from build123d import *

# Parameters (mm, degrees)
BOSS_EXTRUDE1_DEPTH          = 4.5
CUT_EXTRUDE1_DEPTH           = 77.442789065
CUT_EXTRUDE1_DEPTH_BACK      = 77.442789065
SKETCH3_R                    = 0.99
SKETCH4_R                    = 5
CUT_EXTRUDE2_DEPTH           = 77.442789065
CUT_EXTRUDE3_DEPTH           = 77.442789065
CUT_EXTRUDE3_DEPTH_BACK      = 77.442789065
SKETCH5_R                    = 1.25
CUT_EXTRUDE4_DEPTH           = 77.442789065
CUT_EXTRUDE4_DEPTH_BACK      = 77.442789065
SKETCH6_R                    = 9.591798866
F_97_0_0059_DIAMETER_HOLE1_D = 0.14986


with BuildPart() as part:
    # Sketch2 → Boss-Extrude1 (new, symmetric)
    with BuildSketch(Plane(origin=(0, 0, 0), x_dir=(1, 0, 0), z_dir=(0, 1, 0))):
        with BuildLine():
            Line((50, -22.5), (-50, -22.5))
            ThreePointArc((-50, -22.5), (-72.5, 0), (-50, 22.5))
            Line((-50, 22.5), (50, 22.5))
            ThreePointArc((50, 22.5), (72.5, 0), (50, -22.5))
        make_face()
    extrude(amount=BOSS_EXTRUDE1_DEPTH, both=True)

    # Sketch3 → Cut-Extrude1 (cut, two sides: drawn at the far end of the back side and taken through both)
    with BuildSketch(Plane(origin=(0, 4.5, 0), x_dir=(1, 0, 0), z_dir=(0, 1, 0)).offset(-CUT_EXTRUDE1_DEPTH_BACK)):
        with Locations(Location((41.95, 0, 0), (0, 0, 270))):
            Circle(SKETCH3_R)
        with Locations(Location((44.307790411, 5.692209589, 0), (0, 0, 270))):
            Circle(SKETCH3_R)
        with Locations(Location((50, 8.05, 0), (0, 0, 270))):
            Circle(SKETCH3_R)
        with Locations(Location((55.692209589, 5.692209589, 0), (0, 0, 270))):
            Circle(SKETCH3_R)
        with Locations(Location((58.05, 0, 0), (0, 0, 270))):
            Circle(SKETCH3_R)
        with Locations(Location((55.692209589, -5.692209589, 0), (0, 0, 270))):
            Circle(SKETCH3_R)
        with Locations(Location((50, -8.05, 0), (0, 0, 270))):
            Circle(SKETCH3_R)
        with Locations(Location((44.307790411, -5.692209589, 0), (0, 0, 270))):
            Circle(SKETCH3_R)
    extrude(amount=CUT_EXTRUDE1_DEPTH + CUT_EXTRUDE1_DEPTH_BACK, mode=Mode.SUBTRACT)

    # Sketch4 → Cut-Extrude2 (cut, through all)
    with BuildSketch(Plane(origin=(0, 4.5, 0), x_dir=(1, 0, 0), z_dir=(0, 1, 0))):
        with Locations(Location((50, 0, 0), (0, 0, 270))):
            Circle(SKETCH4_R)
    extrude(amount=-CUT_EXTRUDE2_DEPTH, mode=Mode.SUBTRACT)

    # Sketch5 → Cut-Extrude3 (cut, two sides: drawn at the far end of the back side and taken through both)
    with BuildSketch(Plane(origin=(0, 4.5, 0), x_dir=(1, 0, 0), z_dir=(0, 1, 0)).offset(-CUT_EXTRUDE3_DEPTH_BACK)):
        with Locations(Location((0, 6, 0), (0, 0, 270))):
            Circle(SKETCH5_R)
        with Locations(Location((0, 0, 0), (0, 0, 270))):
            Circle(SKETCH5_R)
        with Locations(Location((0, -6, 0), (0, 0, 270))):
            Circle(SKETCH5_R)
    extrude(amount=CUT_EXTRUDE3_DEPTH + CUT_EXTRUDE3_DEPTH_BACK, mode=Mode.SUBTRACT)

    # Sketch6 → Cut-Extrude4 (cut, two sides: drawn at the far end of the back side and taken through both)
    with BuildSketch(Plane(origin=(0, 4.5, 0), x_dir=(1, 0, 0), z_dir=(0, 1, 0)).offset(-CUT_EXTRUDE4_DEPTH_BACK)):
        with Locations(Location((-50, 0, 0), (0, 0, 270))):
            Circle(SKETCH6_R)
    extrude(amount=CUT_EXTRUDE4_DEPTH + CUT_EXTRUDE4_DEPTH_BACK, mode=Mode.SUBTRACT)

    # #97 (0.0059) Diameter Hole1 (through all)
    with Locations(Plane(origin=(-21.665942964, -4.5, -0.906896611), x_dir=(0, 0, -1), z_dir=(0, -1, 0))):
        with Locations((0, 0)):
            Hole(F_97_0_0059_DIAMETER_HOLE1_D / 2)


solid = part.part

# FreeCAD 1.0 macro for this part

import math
import FreeCAD as App
import Part
import Sketcher
from FreeCAD import Vector

doc = App.newDocument("Part")
body = doc.addObject("PartDesign::Body", "Body")

sketch1 = body.newObject("Sketcher::SketchObject", "Sketch")
sketch1.AttachmentSupport = (doc.getObject("XZ_Plane"), [""])
sketch1.MapMode = "FlatFace"
sketch1.addGeometry([
    Part.LineSegment(Vector(-50, 22, 0), Vector(50, 22, 0)),
    Part.ArcOfCircle(Part.Circle(Vector(50, 0, 0), Vector(0, 0, 1), 22), math.radians(-90), math.radians(90)),
    Part.LineSegment(Vector(50, -22, 0), Vector(-50, -22, 0)),
    Part.ArcOfCircle(Part.Circle(Vector(-50, 0, 0), Vector(0, 0, 1), 22), math.radians(90), math.radians(270)),
], False)
sketch1.addConstraint([
    Sketcher.Constraint("Tangent", 0, 2, 1, 2),
    Sketcher.Constraint("Tangent", 1, 1, 2, 1),
    Sketcher.Constraint("Tangent", 2, 2, 3, 2),
    Sketcher.Constraint("Tangent", 3, 1, 0, 1),
    Sketcher.Constraint("Horizontal", 0),
    Sketcher.Constraint("Horizontal", 2),
    Sketcher.Constraint("Symmetric", 1, 3, 3, 3, -1, 1),
    Sketcher.Constraint("Radius", 1, 22.5),
    Sketcher.Constraint("DistanceX", 0, 1, 0, 2, 100.0),
])
pad1 = body.newObject("PartDesign::Pad", "Pad")
pad1.Profile = sketch1
pad1.Length = 9
pad1.Midplane = True

sketch2 = body.newObject("Sketcher::SketchObject", "Sketch001")
sketch2.AttachmentSupport = (doc.getObject("XZ_Plane"), [""])
sketch2.MapMode = "FlatFace"
sketch2.AttachmentOffset = App.Placement(Vector(0, 0, -4.5), App.Rotation())
sketch2.addGeometry([
    Part.Circle(Vector(42, 0, 0), Vector(0, 0, 1), 1),
    Part.Circle(Vector(44.3, -5.7, 0), Vector(0, 0, 1), 1),
    Part.Circle(Vector(50, -8.1, 0), Vector(0, 0, 1), 1),
    Part.Circle(Vector(55.7, -5.7, 0), Vector(0, 0, 1), 1),
    Part.Circle(Vector(58, 0, 0), Vector(0, 0, 1), 1),
    Part.Circle(Vector(55.7, 5.7, 0), Vector(0, 0, 1), 1),
    Part.Circle(Vector(50, 8.1, 0), Vector(0, 0, 1), 1),
    Part.Circle(Vector(44.3, 5.7, 0), Vector(0, 0, 1), 1),
], False)
sketch2.addConstraint([
    Sketcher.Constraint("Equal", 0, 1),
    Sketcher.Constraint("Equal", 1, 2),
    Sketcher.Constraint("Equal", 2, 3),
    Sketcher.Constraint("Equal", 3, 4),
    Sketcher.Constraint("Equal", 4, 5),
    Sketcher.Constraint("Equal", 5, 6),
    Sketcher.Constraint("Equal", 6, 7),
    Sketcher.Constraint("Symmetric", 3, 3, 5, 3, -1),
    Sketcher.Constraint("Symmetric", 2, 3, 6, 3, -1),
    Sketcher.Constraint("Symmetric", 1, 3, 7, 3, -1),
    Sketcher.Constraint("PointOnObject", 0, 3, -1),
    Sketcher.Constraint("PointOnObject", 4, 3, -1),
    Sketcher.Constraint("Horizontal", 1, 3, 3, 3),
    Sketcher.Constraint("Diameter", 0, 1.98),
    Sketcher.Constraint("DistanceX", -1, 1, 2, 3, 50.0),
    Sketcher.Constraint("DistanceX", 0, 3, 4, 3, 16.1),
    Sketcher.Constraint("DistanceX", -1, 1, 0, 3, 41.95),
    Sketcher.Constraint("DistanceY", 2, 3, -1, 1, 8.05),
    Sketcher.Constraint("DistanceX", -1, 1, 1, 3, 44.30779),
    Sketcher.Constraint("DistanceY", 1, 3, -1, 1, 5.69221),
    Sketcher.Constraint("DistanceX", -1, 1, 3, 3, 55.69221),
])
pocket1 = body.newObject("PartDesign::Pocket", "Pocket")
pocket1.Profile = sketch2
pocket1.Type = "ThroughAll"
pocket1.Midplane = True

sketch3 = body.newObject("Sketcher::SketchObject", "Sketch002")
sketch3.AttachmentSupport = (doc.getObject("XZ_Plane"), [""])
sketch3.MapMode = "FlatFace"
sketch3.AttachmentOffset = App.Placement(Vector(0, 0, -4.5), App.Rotation())
sketch3.addGeometry(Part.Circle(Vector(50, 0, 0), Vector(0, 0, 1), 5), False)
sketch3.addConstraint([
    Sketcher.Constraint("PointOnObject", 0, 3, -1),
    Sketcher.Constraint("Diameter", 0, 10.0),
    Sketcher.Constraint("DistanceX", -1, 1, 0, 3, 50.0),
])
pocket2 = body.newObject("PartDesign::Pocket", "Pocket001")
pocket2.Profile = sketch3
pocket2.Type = "ThroughAll"
pocket2.Reversed = True

sketch4 = body.newObject("Sketcher::SketchObject", "Sketch003")
sketch4.AttachmentSupport = (doc.getObject("XZ_Plane"), [""])
sketch4.MapMode = "FlatFace"
sketch4.AttachmentOffset = App.Placement(Vector(0, 0, -4.5), App.Rotation())
sketch4.addGeometry([
    Part.Circle(Vector(0, -6, 0), Vector(0, 0, 1), 1.2),
    Part.Circle(Vector(0, 0, 0), Vector(0, 0, 1), 1.2),
    Part.Circle(Vector(0, 6, 0), Vector(0, 0, 1), 1.2),
], False)
sketch4.addConstraint([
    Sketcher.Constraint("Coincident", 1, 3, -1, 1),
    Sketcher.Constraint("Equal", 0, 1),
    Sketcher.Constraint("Equal", 1, 2),
    Sketcher.Constraint("Symmetric", 0, 3, 2, 3, -1, 1),
    Sketcher.Constraint("PointOnObject", 0, 3, -2),
    Sketcher.Constraint("Diameter", 0, 2.5),
    Sketcher.Constraint("DistanceY", 0, 3, -1, 1, 6.0),
])
pocket3 = body.newObject("PartDesign::Pocket", "Pocket002")
pocket3.Profile = sketch4
pocket3.Type = "ThroughAll"
pocket3.Midplane = True

sketch5 = body.newObject("Sketcher::SketchObject", "Sketch004")
sketch5.AttachmentSupport = (doc.getObject("XZ_Plane"), [""])
sketch5.MapMode = "FlatFace"
sketch5.AttachmentOffset = App.Placement(Vector(0, 0, -4.5), App.Rotation())
sketch5.addGeometry(Part.Circle(Vector(-50, 0, 0), Vector(0, 0, 1), 10), False)
sketch5.addConstraint([
    Sketcher.Constraint("PointOnObject", 0, 3, -1),
    Sketcher.Constraint("DistanceX", 0, 3, -1, 1, 50.0),
    Sketcher.Constraint("Diameter", 0, 19.183598),
])
pocket4 = body.newObject("PartDesign::Pocket", "Pocket003")
pocket4.Profile = sketch5
pocket4.Type = "ThroughAll"
pocket4.Midplane = True

sketch6 = body.newObject("Sketcher::SketchObject", "Sketch005")
sketch6.AttachmentSupport = (doc.getObject("XZ_Plane"), [""])
sketch6.MapMode = "FlatFace"
sketch6.AttachmentOffset = App.Placement(Vector(0, 0, 4.5), App.Rotation())
sketch6.addGeometry(Part.Circle(Vector(-21.67, -0.91, 0), Vector(0, 0, 1), 0.07), False)
sketch6.addConstraint([
    Sketcher.Constraint("Diameter", 0, 0.14986),
    Sketcher.Constraint("DistanceX", 0, 3, -1, 1, 21.665943),
    Sketcher.Constraint("DistanceY", 0, 3, -1, 1, 0.906897),
])
doc.recompute()
hole = body.newObject("PartDesign::Hole", "Hole")
hole.Profile = sketch6
hole.ThreadType = "None"
hole.Diameter = 0.14986
hole.DepthType = "ThroughAll"

doc.recompute()
